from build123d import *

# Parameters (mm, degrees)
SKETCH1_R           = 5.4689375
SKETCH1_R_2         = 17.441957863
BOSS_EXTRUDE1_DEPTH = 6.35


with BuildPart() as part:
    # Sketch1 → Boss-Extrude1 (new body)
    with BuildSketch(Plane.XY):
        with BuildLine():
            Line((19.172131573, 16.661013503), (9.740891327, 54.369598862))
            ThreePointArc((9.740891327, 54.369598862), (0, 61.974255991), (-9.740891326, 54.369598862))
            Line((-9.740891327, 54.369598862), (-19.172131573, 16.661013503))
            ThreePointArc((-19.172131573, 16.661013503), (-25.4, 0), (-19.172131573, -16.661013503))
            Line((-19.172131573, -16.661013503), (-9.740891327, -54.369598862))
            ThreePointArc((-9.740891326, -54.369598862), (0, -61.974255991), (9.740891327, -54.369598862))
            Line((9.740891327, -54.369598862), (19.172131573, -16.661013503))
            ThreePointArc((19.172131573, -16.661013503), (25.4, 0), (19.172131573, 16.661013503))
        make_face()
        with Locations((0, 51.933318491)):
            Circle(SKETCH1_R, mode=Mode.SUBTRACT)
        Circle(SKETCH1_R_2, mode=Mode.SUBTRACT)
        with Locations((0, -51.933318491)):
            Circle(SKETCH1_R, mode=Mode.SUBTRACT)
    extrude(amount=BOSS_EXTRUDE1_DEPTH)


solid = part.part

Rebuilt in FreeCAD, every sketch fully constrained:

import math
import FreeCAD as App
import Part
import Sketcher
Q = App.Units.Quantity

doc = App.newDocument("Part")
params = doc.addObject("Spreadsheet::Sheet", "Params")
for row, (alias, value) in enumerate([
    ("sketch1_radius", "1 in"),
    ("pad1_length", "0.25 in"),
], start=1):
    params.set(f"A{row}", alias)
    params.set(f"B{row}", "=" + value)
    params.setAlias(f"B{row}", alias)

body = doc.addObject("PartDesign::Body", "Body")

# Sketch on XY plane
sketch1 = doc.addObject("Sketcher::SketchObject", "Sketch")
body.addObject(sketch1)
sketch1.AttachmentSupport = (doc.XY_Plane, [""])
sketch1.MapMode = "FlatFace"
sketch1.addGeometry([
    Part.LineSegment(App.Vector(19, 17, 0), App.Vector(10, 54, 0)),  # 0
    Part.ArcOfCircle(Part.Circle(App.Vector(0, 52, 0), App.Vector(0, 0, 1), 10), math.radians(14), math.radians(166)),  # 1
    Part.LineSegment(App.Vector(-10, 54, 0), App.Vector(-19, 17, 0)),  # 2
    Part.ArcOfCircle(Part.Circle(App.Vector(0, 0, 0), App.Vector(0, 0, 1), 25), math.radians(139), math.radians(221)),  # 3
    Part.LineSegment(App.Vector(-19, -17, 0), App.Vector(-10, -54, 0)),  # 4
    Part.ArcOfCircle(Part.Circle(App.Vector(0, -52, 0), App.Vector(0, 0, 1), 10), math.radians(-166), math.radians(-14)),  # 5
    Part.LineSegment(App.Vector(10, -54, 0), App.Vector(19, -17, 0)),  # 6
    Part.ArcOfCircle(Part.Circle(App.Vector(0, 0, 0), App.Vector(0, 0, 1), 25), math.radians(-41), math.radians(41)),  # 7
    Part.Circle(App.Vector(0, -52, 0), App.Vector(0, 0, 1), 5),  # 8
    Part.Circle(App.Vector(0, 0, 0), App.Vector(0, 0, 1), 17),  # 9
    Part.Circle(App.Vector(0, 52, 0), App.Vector(0, 0, 1), 5),  # 10
], False)
sketch1.addConstraint([
    Sketcher.Constraint("Tangent", 0, 2, 1, 1),
    Sketcher.Constraint("Tangent", 1, 2, 2, 1),
    Sketcher.Constraint("Coincident", 2, 2, 3, 1),
    Sketcher.Constraint("Coincident", 3, 2, 4, 1),
    Sketcher.Constraint("Tangent", 4, 2, 5, 1),
    Sketcher.Constraint("Tangent", 5, 2, 6, 1),
    Sketcher.Constraint("Coincident", 6, 2, 7, 1),
    Sketcher.Constraint("Coincident", 7, 2, 0, 1),
    Sketcher.Constraint("Coincident", 3, 3, -1, 1),
    Sketcher.Constraint("Coincident", 7, 3, -1, 1),
    Sketcher.Constraint("Coincident", 9, 3, -1, 1),
    Sketcher.Constraint("Coincident", 8, 3, 5, 3),
    Sketcher.Constraint("Coincident", 10, 3, 1, 3),
    Sketcher.Constraint("Equal", 1, 5),
    Sketcher.Constraint("Equal", 3, 7),
    Sketcher.Constraint("Equal", 8, 10),
    Sketcher.Constraint("Symmetric", 1, 3, 5, 3, -1, 1),
    Sketcher.Constraint("Symmetric", 0, 2, 1, 2, -2),
    Sketcher.Constraint("Parallel", 0, 4),
    Sketcher.Constraint("Parallel", 2, 6),
    Sketcher.Constraint("Radius", 3, Q("1 in")),
    Sketcher.Constraint("Diameter", 8, Q("10.937875 mm")),
    Sketcher.Constraint("Diameter", 9, Q("34.883916 mm")),
    Sketcher.Constraint("Radius", 1, Q("10.040938 mm")),
    Sketcher.Constraint("DistanceY", -1, 1, 0, 2, Q("54.369599 mm")),
    Sketcher.Constraint("DistanceY", -1, 1, 1, 3, Q("51.933318 mm")),
])
sketch1.setExpression("Constraints[20]", "Params.sketch1_radius")
pad1 = doc.addObject("PartDesign::Pad", "Pad")
body.addObject(pad1)
pad1.Profile = sketch1
pad1.setExpression("Length", "Params.pad1_length")

doc.recompute()
